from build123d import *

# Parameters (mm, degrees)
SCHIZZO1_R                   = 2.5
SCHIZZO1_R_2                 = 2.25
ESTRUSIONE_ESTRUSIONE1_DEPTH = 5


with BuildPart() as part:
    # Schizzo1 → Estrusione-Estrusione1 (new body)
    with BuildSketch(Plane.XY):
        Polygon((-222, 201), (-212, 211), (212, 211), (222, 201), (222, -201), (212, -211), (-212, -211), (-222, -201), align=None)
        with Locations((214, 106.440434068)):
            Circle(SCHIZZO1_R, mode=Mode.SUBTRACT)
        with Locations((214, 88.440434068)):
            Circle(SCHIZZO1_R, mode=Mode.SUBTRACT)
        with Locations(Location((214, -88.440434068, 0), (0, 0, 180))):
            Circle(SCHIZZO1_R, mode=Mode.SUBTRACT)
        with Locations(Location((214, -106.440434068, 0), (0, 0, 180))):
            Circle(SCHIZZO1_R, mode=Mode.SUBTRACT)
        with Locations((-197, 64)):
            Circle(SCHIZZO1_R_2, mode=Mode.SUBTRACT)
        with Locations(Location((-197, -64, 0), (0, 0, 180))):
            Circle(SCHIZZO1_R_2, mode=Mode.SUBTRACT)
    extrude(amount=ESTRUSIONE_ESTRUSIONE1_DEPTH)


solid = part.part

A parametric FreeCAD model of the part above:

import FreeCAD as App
import Part
import Sketcher
from FreeCAD import Vector
Q = App.Units.Quantity

doc = App.newDocument("Part")
body = doc.addObject("PartDesign::Body", "Body")

# Sketch on XY plane
sketch1 = body.newObject("Sketcher::SketchObject", "Sketch")
sketch1.AttachmentSupport = (doc.getObject("XY_Plane"), [""])
sketch1.MapMode = "FlatFace"
sketch1.addGeometry([
    Part.LineSegment(Vector(-212, 211, 0), Vector(-222, 201, 0)),  # 0
    Part.LineSegment(Vector(-222, 201, 0), Vector(-222, -201, 0)),  # 1
    Part.LineSegment(Vector(-222, -201, 0), Vector(-212, -211, 0)),  # 2
    Part.LineSegment(Vector(-212, -211, 0), Vector(212, -211, 0)),  # 3
    Part.LineSegment(Vector(212, -211, 0), Vector(222, -201, 0)),  # 4
    Part.LineSegment(Vector(222, -201, 0), Vector(222, 201, 0)),  # 5
    Part.LineSegment(Vector(222, 201, 0), Vector(212, 211, 0)),  # 6
    Part.LineSegment(Vector(212, 211, 0), Vector(-212, 211, 0)),  # 7
    Part.Circle(Vector(214, -106.440434, 0), Vector(0, 0, 1), 2.5),  # 8
    Part.Circle(Vector(214, -88.440434, 0), Vector(0, 0, 1), 2.5),  # 9
    Part.Circle(Vector(-197, -64, 0), Vector(0, 0, 1), 2.25),  # 10
    Part.Circle(Vector(214, 88.440434, 0), Vector(0, 0, 1), 2.5),  # 11
    Part.Circle(Vector(214, 106.440434, 0), Vector(0, 0, 1), 2.5),  # 12
    Part.Circle(Vector(-197, 64, 0), Vector(0, 0, 1), 2.25),  # 13
], False)
sketch1.addConstraint([
    Sketcher.Constraint("Coincident", 0, 2, 1, 1),
    Sketcher.Constraint("Coincident", 1, 2, 2, 1),
    Sketcher.Constraint("Coincident", 2, 2, 3, 1),
    Sketcher.Constraint("Coincident", 3, 2, 4, 1),
    Sketcher.Constraint("Coincident", 4, 2, 5, 1),
    Sketcher.Constraint("Coincident", 5, 2, 6, 1),
    Sketcher.Constraint("Coincident", 6, 2, 7, 1),
    Sketcher.Constraint("Coincident", 7, 2, 0, 1),
    Sketcher.Constraint("Vertical", 1),
    Sketcher.Constraint("Horizontal", 3),
    Sketcher.Constraint("Vertical", 5),
    Sketcher.Constraint("Horizontal", 7),
    Sketcher.Constraint("Equal", 8, 9),
    Sketcher.Constraint("Equal", 9, 11),
    Sketcher.Constraint("Equal", 11, 12),
    Sketcher.Constraint("Equal", 10, 13),
    Sketcher.Constraint("Symmetric", 0, 2, 4, 2, -1, 1),
    Sketcher.Constraint("Symmetric", 2, 2, 6, 2, -1, 1),
    Sketcher.Constraint("Symmetric", 9, 3, 11, 3, -1),
    Sketcher.Constraint("Symmetric", 8, 3, 12, 3, -1),
    Sketcher.Constraint("Symmetric", 10, 3, 13, 3, -1),
    Sketcher.Constraint("Perpendicular", 0, 2),
    Sketcher.Constraint("Perpendicular", 2, 4),
    Sketcher.Constraint("Perpendicular", 4, 6),
    Sketcher.Constraint("Horizontal", 1, 2, 4, 2),
    Sketcher.Constraint("Vertical", 8, 3, 9, 3),
    Sketcher.Constraint("Vertical", 3, 2, 6, 2),
    Sketcher.Constraint("Diameter", 8, Q("5 mm")),
    Sketcher.Constraint("Diameter", 10, Q("4.5 mm")),
    Sketcher.Constraint("DistanceX", 3, 1, 3, 2, Q("424 mm")),
    Sketcher.Constraint("DistanceY", 1, 2, 1, 1, Q("402 mm")),
    Sketcher.Constraint("DistanceX", -1, 1, 8, 3, Q("214 mm")),
    Sketcher.Constraint("DistanceX", 10, 3, -1, 1, Q("197 mm")),
    Sketcher.Constraint("DistanceY", 10, 3, -1, 1, Q("64 mm")),
    Sketcher.Constraint("DistanceX", 0, 2, -1, 1, Q("222 mm")),
    Sketcher.Constraint("DistanceY", 8, 3, 9, 3, Q("18 mm")),
    Sketcher.Constraint("DistanceY", 9, 3, 11, 3, Q("176.880868 mm")),
])
pad1 = body.newObject("PartDesign::Pad", "Pad")
pad1.Profile = sketch1
pad1.Length = 5

doc.recompute()
